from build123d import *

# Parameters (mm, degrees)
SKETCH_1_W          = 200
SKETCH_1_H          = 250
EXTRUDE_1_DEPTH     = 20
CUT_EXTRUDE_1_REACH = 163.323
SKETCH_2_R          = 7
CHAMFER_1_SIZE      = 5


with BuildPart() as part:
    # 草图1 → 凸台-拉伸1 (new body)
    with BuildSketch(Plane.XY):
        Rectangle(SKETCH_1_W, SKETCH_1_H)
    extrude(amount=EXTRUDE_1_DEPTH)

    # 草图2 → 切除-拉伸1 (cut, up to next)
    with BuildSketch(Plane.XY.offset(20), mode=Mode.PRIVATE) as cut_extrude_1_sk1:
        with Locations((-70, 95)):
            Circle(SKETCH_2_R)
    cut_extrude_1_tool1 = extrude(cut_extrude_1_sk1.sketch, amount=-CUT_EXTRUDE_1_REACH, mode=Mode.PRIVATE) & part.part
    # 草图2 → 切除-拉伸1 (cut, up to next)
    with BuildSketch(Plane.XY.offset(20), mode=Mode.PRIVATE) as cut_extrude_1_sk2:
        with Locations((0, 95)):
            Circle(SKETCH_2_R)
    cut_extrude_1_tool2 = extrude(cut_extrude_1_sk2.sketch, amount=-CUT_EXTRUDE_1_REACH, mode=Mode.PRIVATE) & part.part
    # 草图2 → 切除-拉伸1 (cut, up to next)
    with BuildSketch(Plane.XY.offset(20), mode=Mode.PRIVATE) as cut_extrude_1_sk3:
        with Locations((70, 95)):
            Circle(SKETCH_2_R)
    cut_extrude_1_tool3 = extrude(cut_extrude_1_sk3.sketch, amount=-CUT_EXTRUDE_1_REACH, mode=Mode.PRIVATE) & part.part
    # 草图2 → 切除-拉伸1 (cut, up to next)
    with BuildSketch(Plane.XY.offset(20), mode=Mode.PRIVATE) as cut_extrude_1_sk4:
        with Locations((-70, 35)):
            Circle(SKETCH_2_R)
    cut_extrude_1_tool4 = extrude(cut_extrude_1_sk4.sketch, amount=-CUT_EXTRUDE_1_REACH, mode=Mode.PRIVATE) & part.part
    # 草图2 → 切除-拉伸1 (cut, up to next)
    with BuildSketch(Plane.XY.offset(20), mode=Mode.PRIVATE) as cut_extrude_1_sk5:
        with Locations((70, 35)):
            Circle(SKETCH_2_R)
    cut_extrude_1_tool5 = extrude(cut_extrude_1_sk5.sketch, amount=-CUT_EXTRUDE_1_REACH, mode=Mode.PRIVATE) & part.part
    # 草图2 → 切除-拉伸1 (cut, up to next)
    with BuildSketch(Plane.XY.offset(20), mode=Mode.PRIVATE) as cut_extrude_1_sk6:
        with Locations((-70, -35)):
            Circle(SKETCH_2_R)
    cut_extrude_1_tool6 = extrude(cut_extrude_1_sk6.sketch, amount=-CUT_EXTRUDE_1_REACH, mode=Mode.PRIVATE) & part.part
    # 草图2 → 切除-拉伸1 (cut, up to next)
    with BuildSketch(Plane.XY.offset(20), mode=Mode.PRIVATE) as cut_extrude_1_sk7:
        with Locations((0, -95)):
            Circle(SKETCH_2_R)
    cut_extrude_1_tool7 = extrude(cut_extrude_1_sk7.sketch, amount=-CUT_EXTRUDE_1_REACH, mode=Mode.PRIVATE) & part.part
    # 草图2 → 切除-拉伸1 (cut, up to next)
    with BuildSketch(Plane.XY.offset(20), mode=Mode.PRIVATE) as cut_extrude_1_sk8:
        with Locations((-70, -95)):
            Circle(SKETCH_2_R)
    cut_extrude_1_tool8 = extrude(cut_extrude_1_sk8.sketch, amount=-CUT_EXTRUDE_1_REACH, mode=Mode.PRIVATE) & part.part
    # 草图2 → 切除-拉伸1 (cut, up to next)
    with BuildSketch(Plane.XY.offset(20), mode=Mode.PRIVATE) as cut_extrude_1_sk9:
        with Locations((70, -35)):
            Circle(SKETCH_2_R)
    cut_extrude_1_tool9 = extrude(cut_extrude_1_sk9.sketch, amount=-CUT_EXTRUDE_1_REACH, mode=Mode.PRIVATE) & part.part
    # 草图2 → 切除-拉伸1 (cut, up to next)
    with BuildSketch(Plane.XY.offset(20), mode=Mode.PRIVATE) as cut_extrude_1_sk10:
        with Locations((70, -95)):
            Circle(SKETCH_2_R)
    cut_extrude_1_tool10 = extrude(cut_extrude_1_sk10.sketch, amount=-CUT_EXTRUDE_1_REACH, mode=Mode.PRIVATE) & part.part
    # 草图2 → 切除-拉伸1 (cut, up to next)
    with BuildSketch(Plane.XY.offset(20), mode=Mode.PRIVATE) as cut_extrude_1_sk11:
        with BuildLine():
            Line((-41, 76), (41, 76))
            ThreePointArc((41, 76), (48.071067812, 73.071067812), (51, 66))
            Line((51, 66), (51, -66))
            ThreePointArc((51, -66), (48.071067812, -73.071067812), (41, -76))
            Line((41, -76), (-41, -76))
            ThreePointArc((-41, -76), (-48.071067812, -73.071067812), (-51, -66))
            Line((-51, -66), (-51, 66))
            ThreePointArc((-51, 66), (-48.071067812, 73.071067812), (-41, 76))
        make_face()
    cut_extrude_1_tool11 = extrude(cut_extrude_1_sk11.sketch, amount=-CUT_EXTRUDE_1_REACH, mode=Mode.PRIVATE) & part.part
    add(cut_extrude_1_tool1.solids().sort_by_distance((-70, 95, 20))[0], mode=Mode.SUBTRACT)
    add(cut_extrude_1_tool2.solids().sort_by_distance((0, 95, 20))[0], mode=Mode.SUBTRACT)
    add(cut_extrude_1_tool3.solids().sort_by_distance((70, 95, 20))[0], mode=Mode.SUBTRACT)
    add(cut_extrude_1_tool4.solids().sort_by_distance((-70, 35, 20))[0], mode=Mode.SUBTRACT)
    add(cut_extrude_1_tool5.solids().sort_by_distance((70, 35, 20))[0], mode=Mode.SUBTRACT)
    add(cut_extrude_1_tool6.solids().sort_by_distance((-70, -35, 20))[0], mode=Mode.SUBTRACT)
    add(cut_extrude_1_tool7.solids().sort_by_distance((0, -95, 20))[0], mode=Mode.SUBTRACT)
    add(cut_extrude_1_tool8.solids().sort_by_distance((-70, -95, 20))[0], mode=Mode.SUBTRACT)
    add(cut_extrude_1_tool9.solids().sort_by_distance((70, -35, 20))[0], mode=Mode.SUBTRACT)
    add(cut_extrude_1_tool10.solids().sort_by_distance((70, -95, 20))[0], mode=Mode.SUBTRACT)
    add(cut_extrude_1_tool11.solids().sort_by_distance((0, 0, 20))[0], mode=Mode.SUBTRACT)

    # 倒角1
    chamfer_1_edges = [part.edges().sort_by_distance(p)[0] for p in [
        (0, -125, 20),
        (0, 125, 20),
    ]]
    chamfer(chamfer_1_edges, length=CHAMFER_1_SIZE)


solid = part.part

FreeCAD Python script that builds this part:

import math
import FreeCAD as App
import Part
import Sketcher
Q = App.Units.Quantity


def edges_at(feature, points):
    """Names of the edges that pass closest to the given points."""
    edges = feature.Shape.Edges
    near = lambda p: min(range(len(edges)), key=lambda i: edges[i].distToShape(Part.Vertex(*p))[0])
    return sorted({f"Edge{near(p) + 1}" for p in points})

doc = App.newDocument("Part")
body = doc.addObject("PartDesign::Body", "Body")

# Sketch on XY plane
sketch1 = doc.addObject("Sketcher::SketchObject", "Sketch")
body.addObject(sketch1)
sketch1.AttachmentSupport = (doc.XY_Plane, [""])
sketch1.MapMode = "FlatFace"
sketch1.addGeometry(Part.LineSegment(App.Vector(-100, 125, 0), App.Vector(-100, -125, 0)), False)
sketch1.addGeometry(Part.LineSegment(App.Vector(-100, -125, 0), App.Vector(100, -125, 0)), False)
sketch1.addGeometry(Part.LineSegment(App.Vector(100, -125, 0), App.Vector(100, 125, 0)), False)
sketch1.addGeometry(Part.LineSegment(App.Vector(100, 125, 0), App.Vector(-100, 125, 0)), False)
sketch1.addConstraint(Sketcher.Constraint("Coincident", 0, 2, 1, 1))
sketch1.addConstraint(Sketcher.Constraint("Coincident", 1, 2, 2, 1))
sketch1.addConstraint(Sketcher.Constraint("Coincident", 2, 2, 3, 1))
sketch1.addConstraint(Sketcher.Constraint("Coincident", 3, 2, 0, 1))
sketch1.addConstraint(Sketcher.Constraint("Vertical", 0))
sketch1.addConstraint(Sketcher.Constraint("Horizontal", 1))
sketch1.addConstraint(Sketcher.Constraint("Vertical", 2))
sketch1.addConstraint(Sketcher.Constraint("Horizontal", 3))
sketch1.addConstraint(Sketcher.Constraint("Symmetric", 0, 2, 2, 2, -1, 1))
sketch1.addConstraint(Sketcher.Constraint("DistanceX", 1, 1, 1, 2, Q("200 mm")))
sketch1.addConstraint(Sketcher.Constraint("DistanceY", 0, 2, 0, 1, Q("250 mm")))
pad1 = doc.addObject("PartDesign::Pad", "Pad")
body.addObject(pad1)
pad1.Profile = sketch1
pad1.Length = 20

# Sketch on XY plane
sketch2 = doc.addObject("Sketcher::SketchObject", "Sketch001")
body.addObject(sketch2)
sketch2.AttachmentSupport = (doc.XY_Plane, [""])
sketch2.MapMode = "FlatFace"
sketch2.AttachmentOffset = App.Placement(App.Vector(0, 0, 20), App.Rotation())
sketch2.addGeometry(Part.Circle(App.Vector(-70, 95, 0), App.Vector(0, 0, 1), 7), False)
sketch2.addConstraint(Sketcher.Constraint("Diameter", 0, Q("14 mm")))
sketch2.addConstraint(Sketcher.Constraint("DistanceX", 0, 3, -1, 1, Q("70 mm")))
sketch2.addConstraint(Sketcher.Constraint("DistanceY", -1, 1, 0, 3, Q("95 mm")))
pocket1 = doc.addObject("PartDesign::Pocket", "Pocket")
body.addObject(pocket1)
pocket1.Profile = sketch2
pocket1.Type = "UpToFirst"

# Sketch on XY plane
sketch3 = doc.addObject("Sketcher::SketchObject", "Sketch002")
body.addObject(sketch3)
sketch3.AttachmentSupport = (doc.XY_Plane, [""])
sketch3.MapMode = "FlatFace"
sketch3.AttachmentOffset = App.Placement(App.Vector(0, 0, 20), App.Rotation())
sketch3.addGeometry(Part.Circle(App.Vector(0, 95, 0), App.Vector(0, 0, 1), 7), False)
sketch3.addConstraint(Sketcher.Constraint("PointOnObject", 0, 3, -2))
sketch3.addConstraint(Sketcher.Constraint("Diameter", 0, Q("14 mm")))
sketch3.addConstraint(Sketcher.Constraint("DistanceY", -1, 1, 0, 3, Q("95 mm")))
pocket2 = doc.addObject("PartDesign::Pocket", "Pocket001")
body.addObject(pocket2)
pocket2.Profile = sketch3
pocket2.Type = "UpToFirst"

# Sketch on XY plane
sketch4 = doc.addObject("Sketcher::SketchObject", "Sketch003")
body.addObject(sketch4)
sketch4.AttachmentSupport = (doc.XY_Plane, [""])
sketch4.MapMode = "FlatFace"
sketch4.AttachmentOffset = App.Placement(App.Vector(0, 0, 20), App.Rotation())
sketch4.addGeometry(Part.Circle(App.Vector(70, 95, 0), App.Vector(0, 0, 1), 7), False)
sketch4.addConstraint(Sketcher.Constraint("Diameter", 0, Q("14 mm")))
sketch4.addConstraint(Sketcher.Constraint("DistanceX", -1, 1, 0, 3, Q("70 mm")))
sketch4.addConstraint(Sketcher.Constraint("DistanceY", -1, 1, 0, 3, Q("95 mm")))
pocket3 = doc.addObject("PartDesign::Pocket", "Pocket002")
body.addObject(pocket3)
pocket3.Profile = sketch4
pocket3.Type = "UpToFirst"

# Sketch on XY plane
sketch5 = doc.addObject("Sketcher::SketchObject", "Sketch004")
body.addObject(sketch5)
sketch5.AttachmentSupport = (doc.XY_Plane, [""])
sketch5.MapMode = "FlatFace"
sketch5.AttachmentOffset = App.Placement(App.Vector(0, 0, 20), App.Rotation())
sketch5.addGeometry(Part.Circle(App.Vector(-70, 35, 0), App.Vector(0, 0, 1), 7), False)
sketch5.addConstraint(Sketcher.Constraint("Diameter", 0, Q("14 mm")))
sketch5.addConstraint(Sketcher.Constraint("DistanceX", 0, 3, -1, 1, Q("70 mm")))
sketch5.addConstraint(Sketcher.Constraint("DistanceY", -1, 1, 0, 3, Q("35 mm")))
pocket4 = doc.addObject("PartDesign::Pocket", "Pocket003")
body.addObject(pocket4)
pocket4.Profile = sketch5
pocket4.Type = "UpToFirst"

# Sketch on XY plane
sketch6 = doc.addObject("Sketcher::SketchObject", "Sketch005")
body.addObject(sketch6)
sketch6.AttachmentSupport = (doc.XY_Plane, [""])
sketch6.MapMode = "FlatFace"
sketch6.AttachmentOffset = App.Placement(App.Vector(0, 0, 20), App.Rotation())
sketch6.addGeometry(Part.Circle(App.Vector(70, 35, 0), App.Vector(0, 0, 1), 7), False)
sketch6.addConstraint(Sketcher.Constraint("Diameter", 0, Q("14 mm")))
sketch6.addConstraint(Sketcher.Constraint("DistanceX", -1, 1, 0, 3, Q("70 mm")))
sketch6.addConstraint(Sketcher.Constraint("DistanceY", -1, 1, 0, 3, Q("35 mm")))
pocket5 = doc.addObject("PartDesign::Pocket", "Pocket004")
body.addObject(pocket5)
pocket5.Profile = sketch6
pocket5.Type = "UpToFirst"

# Sketch on XY plane
sketch7 = doc.addObject("Sketcher::SketchObject", "Sketch006")
body.addObject(sketch7)
sketch7.AttachmentSupport = (doc.XY_Plane, [""])
sketch7.MapMode = "FlatFace"
sketch7.AttachmentOffset = App.Placement(App.Vector(0, 0, 20), App.Rotation())
sketch7.addGeometry(Part.Circle(App.Vector(-70, -35, 0), App.Vector(0, 0, 1), 7), False)
sketch7.addConstraint(Sketcher.Constraint("Diameter", 0, Q("14 mm")))
sketch7.addConstraint(Sketcher.Constraint("DistanceX", 0, 3, -1, 1, Q("70 mm")))
sketch7.addConstraint(Sketcher.Constraint("DistanceY", 0, 3, -1, 1, Q("35 mm")))
pocket6 = doc.addObject("PartDesign::Pocket", "Pocket005")
body.addObject(pocket6)
pocket6.Profile = sketch7
pocket6.Type = "UpToFirst"

# Sketch on XY plane
sketch8 = doc.addObject("Sketcher::SketchObject", "Sketch007")
body.addObject(sketch8)
sketch8.AttachmentSupport = (doc.XY_Plane, [""])
sketch8.MapMode = "FlatFace"
sketch8.AttachmentOffset = App.Placement(App.Vector(0, 0, 20), App.Rotation())
sketch8.addGeometry(Part.Circle(App.Vector(0, -95, 0), App.Vector(0, 0, 1), 7), False)
sketch8.addConstraint(Sketcher.Constraint("PointOnObject", 0, 3, -2))
sketch8.addConstraint(Sketcher.Constraint("Diameter", 0, Q("14 mm")))
sketch8.addConstraint(Sketcher.Constraint("DistanceY", 0, 3, -1, 1, Q("95 mm")))
pocket7 = doc.addObject("PartDesign::Pocket", "Pocket006")
body.addObject(pocket7)
pocket7.Profile = sketch8
pocket7.Type = "UpToFirst"

# Sketch on XY plane
sketch9 = doc.addObject("Sketcher::SketchObject", "Sketch008")
body.addObject(sketch9)
sketch9.AttachmentSupport = (doc.XY_Plane, [""])
sketch9.MapMode = "FlatFace"
sketch9.AttachmentOffset = App.Placement(App.Vector(0, 0, 20), App.Rotation())
sketch9.addGeometry(Part.Circle(App.Vector(-70, -95, 0), App.Vector(0, 0, 1), 7), False)
sketch9.addConstraint(Sketcher.Constraint("Diameter", 0, Q("14 mm")))
sketch9.addConstraint(Sketcher.Constraint("DistanceX", 0, 3, -1, 1, Q("70 mm")))
sketch9.addConstraint(Sketcher.Constraint("DistanceY", 0, 3, -1, 1, Q("95 mm")))
pocket8 = doc.addObject("PartDesign::Pocket", "Pocket007")
body.addObject(pocket8)
pocket8.Profile = sketch9
pocket8.Type = "UpToFirst"

# Sketch on XY plane
sketch10 = doc.addObject("Sketcher::SketchObject", "Sketch009")
body.addObject(sketch10)
sketch10.AttachmentSupport = (doc.XY_Plane, [""])
sketch10.MapMode = "FlatFace"
sketch10.AttachmentOffset = App.Placement(App.Vector(0, 0, 20), App.Rotation())
sketch10.addGeometry(Part.Circle(App.Vector(70, -35, 0), App.Vector(0, 0, 1), 7), False)
sketch10.addConstraint(Sketcher.Constraint("Diameter", 0, Q("14 mm")))
sketch10.addConstraint(Sketcher.Constraint("DistanceX", -1, 1, 0, 3, Q("70 mm")))
sketch10.addConstraint(Sketcher.Constraint("DistanceY", 0, 3, -1, 1, Q("35 mm")))
pocket9 = doc.addObject("PartDesign::Pocket", "Pocket008")
body.addObject(pocket9)
pocket9.Profile = sketch10
pocket9.Type = "UpToFirst"

# Sketch on XY plane
sketch11 = doc.addObject("Sketcher::SketchObject", "Sketch010")
body.addObject(sketch11)
sketch11.AttachmentSupport = (doc.XY_Plane, [""])
sketch11.MapMode = "FlatFace"
sketch11.AttachmentOffset = App.Placement(App.Vector(0, 0, 20), App.Rotation())
sketch11.addGeometry(Part.Circle(App.Vector(70, -95, 0), App.Vector(0, 0, 1), 7), False)
sketch11.addConstraint(Sketcher.Constraint("Diameter", 0, Q("14 mm")))
sketch11.addConstraint(Sketcher.Constraint("DistanceX", -1, 1, 0, 3, Q("70 mm")))
sketch11.addConstraint(Sketcher.Constraint("DistanceY", 0, 3, -1, 1, Q("95 mm")))
pocket10 = doc.addObject("PartDesign::Pocket", "Pocket009")
body.addObject(pocket10)
pocket10.Profile = sketch11
pocket10.Type = "UpToFirst"

# Sketch on XY plane
sketch12 = doc.addObject("Sketcher::SketchObject", "Sketch011")
body.addObject(sketch12)
sketch12.AttachmentSupport = (doc.XY_Plane, [""])
sketch12.MapMode = "FlatFace"
sketch12.AttachmentOffset = App.Placement(App.Vector(0, 0, 20), App.Rotation())
sketch12.addGeometry(Part.LineSegment(App.Vector(41, 76, 0), App.Vector(-41, 76, 0)), False)
sketch12.addGeometry(Part.ArcOfCircle(Part.Circle(App.Vector(-41, 66, 0), App.Vector(0, 0, 1), 10), math.radians(90), math.radians(180)), False)
sketch12.addGeometry(Part.LineSegment(App.Vector(-51, 66, 0), App.Vector(-51, -66, 0)), False)
sketch12.addGeometry(Part.ArcOfCircle(Part.Circle(App.Vector(-41, -66, 0), App.Vector(0, 0, 1), 10), math.radians(180), math.radians(270)), False)
sketch12.addGeometry(Part.LineSegment(App.Vector(-41, -76, 0), App.Vector(41, -76, 0)), False)
sketch12.addGeometry(Part.ArcOfCircle(Part.Circle(App.Vector(41, -66, 0), App.Vector(0, 0, 1), 10), math.radians(-90), math.radians(0)), False)
sketch12.addGeometry(Part.LineSegment(App.Vector(51, -66, 0), App.Vector(51, 66, 0)), False)
sketch12.addGeometry(Part.ArcOfCircle(Part.Circle(App.Vector(41, 66, 0), App.Vector(0, 0, 1), 10), math.radians(0), math.radians(90)), False)
sketch12.addConstraint(Sketcher.Constraint("Tangent", 0, 2, 1, 1))
sketch12.addConstraint(Sketcher.Constraint("Tangent", 1, 2, 2, 1))
sketch12.addConstraint(Sketcher.Constraint("Tangent", 2, 2, 3, 1))
sketch12.addConstraint(Sketcher.Constraint("Tangent", 3, 2, 4, 1))
sketch12.addConstraint(Sketcher.Constraint("Tangent", 4, 2, 5, 1))
sketch12.addConstraint(Sketcher.Constraint("Tangent", 5, 2, 6, 1))
sketch12.addConstraint(Sketcher.Constraint("Tangent", 6, 2, 7, 1))
sketch12.addConstraint(Sketcher.Constraint("Tangent", 7, 2, 0, 1))
sketch12.addConstraint(Sketcher.Constraint("Horizontal", 0))
sketch12.addConstraint(Sketcher.Constraint("Vertical", 2))
sketch12.addConstraint(Sketcher.Constraint("Horizontal", 4))
sketch12.addConstraint(Sketcher.Constraint("Vertical", 6))
sketch12.addConstraint(Sketcher.Constraint("Equal", 1, 3))
sketch12.addConstraint(Sketcher.Constraint("Equal", 3, 5))
sketch12.addConstraint(Sketcher.Constraint("Equal", 5, 7))
sketch12.addConstraint(Sketcher.Constraint("Symmetric", 1, 3, 5, 3, -1, 1))
sketch12.addConstraint(Sketcher.Constraint("Radius", 1, Q("10 mm")))
sketch12.addConstraint(Sketcher.Constraint("DistanceX", 0, 2, 0, 1, Q("82 mm")))
sketch12.addConstraint(Sketcher.Constraint("DistanceY", 2, 2, 2, 1, Q("132 mm")))
pocket11 = doc.addObject("PartDesign::Pocket", "Pocket010")
body.addObject(pocket11)
pocket11.Profile = sketch12
pocket11.Type = "UpToFirst"
doc.recompute()

chamfer = doc.addObject("PartDesign::Chamfer", "Chamfer")
body.addObject(chamfer)
chamfer.Base = (pocket11, edges_at(pocket11, [(0, -125, 20), (0, 125, 20)]))
chamfer.Size = 5

doc.recompute()
